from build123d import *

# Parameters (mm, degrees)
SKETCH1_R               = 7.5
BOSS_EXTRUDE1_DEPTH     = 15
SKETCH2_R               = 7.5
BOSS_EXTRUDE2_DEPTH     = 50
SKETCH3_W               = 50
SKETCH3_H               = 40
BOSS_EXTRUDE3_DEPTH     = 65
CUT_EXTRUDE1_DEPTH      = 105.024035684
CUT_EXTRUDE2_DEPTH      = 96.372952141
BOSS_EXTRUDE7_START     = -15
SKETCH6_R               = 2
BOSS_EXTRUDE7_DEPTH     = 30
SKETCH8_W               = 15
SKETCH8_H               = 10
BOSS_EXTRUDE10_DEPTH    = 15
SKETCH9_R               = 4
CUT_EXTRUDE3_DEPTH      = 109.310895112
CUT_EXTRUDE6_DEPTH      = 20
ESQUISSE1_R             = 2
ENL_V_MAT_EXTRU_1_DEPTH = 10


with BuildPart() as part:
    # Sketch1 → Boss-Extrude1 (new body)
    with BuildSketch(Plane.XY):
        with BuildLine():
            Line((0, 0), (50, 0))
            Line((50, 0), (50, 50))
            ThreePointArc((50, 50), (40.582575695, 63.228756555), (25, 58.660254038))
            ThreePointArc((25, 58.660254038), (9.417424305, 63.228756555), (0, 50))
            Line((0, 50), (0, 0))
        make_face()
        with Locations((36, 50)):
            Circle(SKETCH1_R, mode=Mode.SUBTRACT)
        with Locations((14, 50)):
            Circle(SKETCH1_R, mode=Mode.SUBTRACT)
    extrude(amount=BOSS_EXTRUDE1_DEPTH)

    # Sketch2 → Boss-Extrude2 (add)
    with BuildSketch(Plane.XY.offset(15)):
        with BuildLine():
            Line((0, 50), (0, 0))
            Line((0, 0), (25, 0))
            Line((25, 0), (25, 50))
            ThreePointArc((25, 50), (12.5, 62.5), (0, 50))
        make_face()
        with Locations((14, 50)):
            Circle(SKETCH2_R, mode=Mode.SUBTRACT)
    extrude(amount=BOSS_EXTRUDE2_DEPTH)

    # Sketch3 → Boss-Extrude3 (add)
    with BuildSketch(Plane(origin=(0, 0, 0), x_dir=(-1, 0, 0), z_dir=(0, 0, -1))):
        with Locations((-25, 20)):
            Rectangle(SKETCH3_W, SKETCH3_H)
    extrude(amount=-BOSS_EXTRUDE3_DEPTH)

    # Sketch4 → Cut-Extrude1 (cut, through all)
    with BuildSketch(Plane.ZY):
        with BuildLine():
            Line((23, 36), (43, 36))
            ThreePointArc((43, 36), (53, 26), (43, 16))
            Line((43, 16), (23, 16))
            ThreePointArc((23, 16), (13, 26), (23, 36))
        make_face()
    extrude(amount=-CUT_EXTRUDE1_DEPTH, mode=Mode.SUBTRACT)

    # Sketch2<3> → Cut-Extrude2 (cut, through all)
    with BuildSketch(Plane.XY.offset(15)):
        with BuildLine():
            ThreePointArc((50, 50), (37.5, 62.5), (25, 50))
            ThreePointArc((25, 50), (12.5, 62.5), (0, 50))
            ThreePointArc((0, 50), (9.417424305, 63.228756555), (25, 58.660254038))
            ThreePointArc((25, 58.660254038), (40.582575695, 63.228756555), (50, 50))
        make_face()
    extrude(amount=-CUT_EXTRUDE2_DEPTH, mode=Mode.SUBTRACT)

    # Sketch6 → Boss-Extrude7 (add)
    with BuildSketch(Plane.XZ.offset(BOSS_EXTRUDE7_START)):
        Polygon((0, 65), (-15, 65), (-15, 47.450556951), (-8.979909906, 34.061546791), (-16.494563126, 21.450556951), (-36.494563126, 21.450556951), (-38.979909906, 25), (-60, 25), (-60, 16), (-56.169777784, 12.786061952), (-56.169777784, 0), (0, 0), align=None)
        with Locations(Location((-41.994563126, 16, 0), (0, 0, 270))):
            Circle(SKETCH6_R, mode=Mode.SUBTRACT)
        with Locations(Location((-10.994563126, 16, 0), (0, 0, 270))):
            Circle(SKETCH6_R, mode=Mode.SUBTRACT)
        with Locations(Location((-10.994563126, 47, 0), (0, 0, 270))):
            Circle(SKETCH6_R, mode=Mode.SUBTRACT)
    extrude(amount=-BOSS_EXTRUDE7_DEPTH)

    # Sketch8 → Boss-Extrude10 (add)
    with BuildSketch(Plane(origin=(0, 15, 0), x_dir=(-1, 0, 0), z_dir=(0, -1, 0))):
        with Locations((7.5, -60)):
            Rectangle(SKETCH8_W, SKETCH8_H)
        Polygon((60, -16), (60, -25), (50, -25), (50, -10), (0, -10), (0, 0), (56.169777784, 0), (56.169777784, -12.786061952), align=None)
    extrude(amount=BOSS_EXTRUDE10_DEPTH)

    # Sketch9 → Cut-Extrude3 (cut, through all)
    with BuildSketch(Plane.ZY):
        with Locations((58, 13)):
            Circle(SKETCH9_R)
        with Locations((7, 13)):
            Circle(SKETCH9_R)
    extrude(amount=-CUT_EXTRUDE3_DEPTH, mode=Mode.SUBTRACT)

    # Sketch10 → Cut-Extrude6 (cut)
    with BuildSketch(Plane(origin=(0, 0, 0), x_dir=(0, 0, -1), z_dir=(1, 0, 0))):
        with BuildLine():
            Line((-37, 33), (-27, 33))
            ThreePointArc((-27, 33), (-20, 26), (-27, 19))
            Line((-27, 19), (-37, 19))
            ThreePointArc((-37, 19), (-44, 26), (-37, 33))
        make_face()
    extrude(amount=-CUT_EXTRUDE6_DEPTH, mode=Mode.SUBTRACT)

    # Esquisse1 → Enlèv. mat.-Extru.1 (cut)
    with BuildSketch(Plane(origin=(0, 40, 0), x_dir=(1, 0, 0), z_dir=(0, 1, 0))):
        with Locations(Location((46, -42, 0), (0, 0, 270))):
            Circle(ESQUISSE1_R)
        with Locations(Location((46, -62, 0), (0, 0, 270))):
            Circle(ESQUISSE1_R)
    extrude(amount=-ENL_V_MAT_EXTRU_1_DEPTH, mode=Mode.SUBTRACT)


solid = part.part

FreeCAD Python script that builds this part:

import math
import FreeCAD as App
import Part
import Sketcher

V = App.Vector
Q = App.Units.Quantity

doc = App.newDocument("Part")
params = doc.addObject("Spreadsheet::Sheet", "Params")
for row, (alias, value) in enumerate([
    ("sketch1_diameter", "15 mm"),
    ("sketch1_radius", "14 mm"),
    ("sketch1_width", "50 mm"),
    ("pad1_length", "15 mm"),
    ("sketch2_diameter", "15 mm"),
    ("sketch2_radius", "12.5 mm"),
    ("sketch2_height", "50 mm"),
    ("pad2_length", "50 mm"),
    ("sketch3_width", "50 mm"),
    ("sketch3_height", "40 mm"),
    ("pad3_length", "65 mm"),
    ("sketch4_radius", "10 mm"),
    ("sketch4_height", "20 mm"),
    ("sketch5_radius", "14 mm"),
    ("sketch5_radius2", "12.5 mm"),
    ("sketch6_diameter", "4 mm"),
    ("sketch6_width", "15 mm"),
    ("sketch6_width2", "20 mm"),
    ("sketch6_height", "9 mm"),
    ("sketch6_height2", "65 mm"),
    ("pad4_length", "30 mm"),
    ("sketch7_width", "15 mm"),
    ("sketch7_width2", "50 mm"),
    ("sketch7_width3", "10 mm"),
    ("sketch7_height", "9 mm"),
    ("sketch7_length", "5 mm"),
    ("pad5_length", "15 mm"),
    ("sketch8_diameter", "8 mm"),
    ("sketch9_radius", "7 mm"),
    ("sketch9_height", "10 mm"),
    ("pocket4_length", "20 mm"),
    ("sketch10_diameter", "4 mm"),
    ("pocket5_length", "10 mm"),
], start=1):
    params.set(f"A{row}", alias)
    params.set(f"B{row}", "=" + value)
    params.setAlias(f"B{row}", alias)

body = doc.addObject("PartDesign::Body", "Body")

# Sketch on XY plane
sketch1 = body.newObject("Sketcher::SketchObject", "Sketch")
sketch1.AttachmentSupport = (doc.getObject("XY_Plane"), [""])
sketch1.MapMode = "FlatFace"
sketch1.addGeometry(Part.LineSegment(V(0, 0, 0), V(50, 0, 0)), False)
sketch1.addGeometry(Part.LineSegment(V(50, 0, 0), V(50, 50, 0)), False)
sketch1.addGeometry(Part.ArcOfCircle(Part.Circle(V(36, 50, 0), V(0, 0, 1), 14), math.radians(0), math.radians(142)), False)
sketch1.addGeometry(Part.ArcOfCircle(Part.Circle(V(14, 50, 0), V(0, 0, 1), 14), math.radians(38), math.radians(180)), False)
sketch1.addGeometry(Part.LineSegment(V(0, 50, 0), V(0, 0, 0)), False)
sketch1.addGeometry(Part.Circle(V(14, 50, 0), V(0, 0, 1), 8), False)
sketch1.addGeometry(Part.Circle(V(36, 50, 0), V(0, 0, 1), 8), False)
sketch1.addConstraint(Sketcher.Constraint("Coincident", 0, 2, 1, 1))
sketch1.addConstraint(Sketcher.Constraint("Tangent", 1, 2, 2, 1))
sketch1.addConstraint(Sketcher.Constraint("Coincident", 2, 2, 3, 1))
sketch1.addConstraint(Sketcher.Constraint("Tangent", 3, 2, 4, 1))
sketch1.addConstraint(Sketcher.Constraint("Coincident", 4, 2, 0, 1))
sketch1.addConstraint(Sketcher.Constraint("Horizontal", 0))
sketch1.addConstraint(Sketcher.Constraint("Vertical", 1))
sketch1.addConstraint(Sketcher.Constraint("Vertical", 4))
sketch1.addConstraint(Sketcher.Constraint("Coincident", 4, 2, -1, 1))
sketch1.addConstraint(Sketcher.Constraint("Coincident", 5, 3, 3, 3))
sketch1.addConstraint(Sketcher.Constraint("Coincident", 6, 3, 2, 3))
sketch1.addConstraint(Sketcher.Constraint("Equal", 2, 3))
sketch1.addConstraint(Sketcher.Constraint("Equal", 5, 6))
sketch1.addConstraint(Sketcher.Constraint("Horizontal", 2, 3, 3, 3))
sketch1.addConstraint(Sketcher.Constraint("Equal", 0, 1))
sketch1.addConstraint(Sketcher.Constraint("Diameter", 5, Q("15 mm")))
sketch1.addConstraint(Sketcher.Constraint("Radius", 2, Q("14 mm")))
sketch1.addConstraint(Sketcher.Constraint("DistanceX", 0, 1, 0, 2, Q("50 mm")))
sketch1.setExpression("Constraints[15]", "Params.sketch1_diameter")
sketch1.setExpression("Constraints[16]", "Params.sketch1_radius")
sketch1.setExpression("Constraints[17]", "Params.sketch1_width")
pad1 = body.newObject("PartDesign::Pad", "Pad")
pad1.Profile = sketch1
pad1.setExpression("Length", "Params.pad1_length")

# Sketch on XY plane
sketch2 = body.newObject("Sketcher::SketchObject", "Sketch001")
sketch2.AttachmentSupport = (doc.getObject("XY_Plane"), [""])
sketch2.MapMode = "FlatFace"
sketch2.AttachmentOffset = App.Placement(V(0, 0, 15), App.Rotation())
sketch2.addGeometry(Part.LineSegment(V(0, 50, 0), V(0, 0, 0)), False)
sketch2.addGeometry(Part.LineSegment(V(0, 0, 0), V(25, 0, 0)), False)
sketch2.addGeometry(Part.LineSegment(V(25, 0, 0), V(25, 50, 0)), False)
sketch2.addGeometry(Part.ArcOfCircle(Part.Circle(V(12, 50, 0), V(0, 0, 1), 12), math.radians(0), math.radians(180)), False)
sketch2.addGeometry(Part.Circle(V(14, 50, 0), V(0, 0, 1), 8), False)
sketch2.addConstraint(Sketcher.Constraint("Coincident", 0, 2, 1, 1))
sketch2.addConstraint(Sketcher.Constraint("Coincident", 1, 2, 2, 1))
sketch2.addConstraint(Sketcher.Constraint("Tangent", 2, 2, 3, 1))
sketch2.addConstraint(Sketcher.Constraint("Tangent", 3, 2, 0, 1))
sketch2.addConstraint(Sketcher.Constraint("Vertical", 0))
sketch2.addConstraint(Sketcher.Constraint("Horizontal", 1))
sketch2.addConstraint(Sketcher.Constraint("Vertical", 2))
sketch2.addConstraint(Sketcher.Constraint("Coincident", 0, 2, -1, 1))
sketch2.addConstraint(Sketcher.Constraint("Horizontal", 3, 3, 4, 3))
sketch2.addConstraint(Sketcher.Constraint("Diameter", 4, Q("15 mm")))
sketch2.addConstraint(Sketcher.Constraint("Radius", 3, Q("12.5 mm")))
sketch2.addConstraint(Sketcher.Constraint("DistanceY", 0, 2, 0, 1, Q("50 mm")))
sketch2.addConstraint(Sketcher.Constraint("DistanceX", -1, 1, 4, 3, Q("14 mm")))
sketch2.setExpression("Constraints[9]", "Params.sketch2_diameter")
sketch2.setExpression("Constraints[10]", "Params.sketch2_radius")
sketch2.setExpression("Constraints[11]", "Params.sketch2_height")
pad2 = body.newObject("PartDesign::Pad", "Pad001")
pad2.Profile = sketch2
pad2.setExpression("Length", "Params.pad2_length")

# Sketch on XY plane
sketch3 = body.newObject("Sketcher::SketchObject", "Sketch002")
sketch3.AttachmentSupport = (doc.getObject("XY_Plane"), [""])
sketch3.MapMode = "FlatFace"
sketch3.addGeometry(Part.LineSegment(V(50, 40, 0), V(50, 0, 0)), False)
sketch3.addGeometry(Part.LineSegment(V(50, 0, 0), V(0, 0, 0)), False)
sketch3.addGeometry(Part.LineSegment(V(0, 0, 0), V(0, 40, 0)), False)
sketch3.addGeometry(Part.LineSegment(V(0, 40, 0), V(50, 40, 0)), False)
sketch3.addConstraint(Sketcher.Constraint("Coincident", 0, 2, 1, 1))
sketch3.addConstraint(Sketcher.Constraint("Coincident", 1, 2, 2, 1))
sketch3.addConstraint(Sketcher.Constraint("Coincident", 2, 2, 3, 1))
sketch3.addConstraint(Sketcher.Constraint("Coincident", 3, 2, 0, 1))
sketch3.addConstraint(Sketcher.Constraint("Vertical", 0))
sketch3.addConstraint(Sketcher.Constraint("Horizontal", 1))
sketch3.addConstraint(Sketcher.Constraint("Vertical", 2))
sketch3.addConstraint(Sketcher.Constraint("Horizontal", 3))
sketch3.addConstraint(Sketcher.Constraint("Coincident", 1, 2, -1, 1))
sketch3.addConstraint(Sketcher.Constraint("DistanceX", 1, 2, 1, 1, Q("50 mm")))
sketch3.addConstraint(Sketcher.Constraint("DistanceY", 0, 2, 0, 1, Q("40 mm")))
sketch3.setExpression("Constraints[9]", "Params.sketch3_width")
sketch3.setExpression("Constraints[10]", "Params.sketch3_height")
pad3 = body.newObject("PartDesign::Pad", "Pad002")
pad3.Profile = sketch3
pad3.setExpression("Length", "Params.pad3_length")

# Sketch on YZ plane
sketch4 = body.newObject("Sketcher::SketchObject", "Sketch003")
sketch4.AttachmentSupport = (doc.getObject("YZ_Plane"), [""])
sketch4.MapMode = "FlatFace"
sketch4.addGeometry(Part.LineSegment(V(36, 43, 0), V(36, 23, 0)), False)
sketch4.addGeometry(Part.ArcOfCircle(Part.Circle(V(26, 23, 0), V(0, 0, 1), 10), math.radians(180), math.radians(360)), False)
sketch4.addGeometry(Part.LineSegment(V(16, 23, 0), V(16, 43, 0)), False)
sketch4.addGeometry(Part.ArcOfCircle(Part.Circle(V(26, 43, 0), V(0, 0, 1), 10), math.radians(0), math.radians(180)), False)
sketch4.addConstraint(Sketcher.Constraint("Tangent", 0, 2, 1, 2))
sketch4.addConstraint(Sketcher.Constraint("Tangent", 1, 1, 2, 1))
sketch4.addConstraint(Sketcher.Constraint("Tangent", 2, 2, 3, 2))
sketch4.addConstraint(Sketcher.Constraint("Tangent", 3, 1, 0, 1))
sketch4.addConstraint(Sketcher.Constraint("Vertical", 0))
sketch4.addConstraint(Sketcher.Constraint("Vertical", 2))
sketch4.addConstraint(Sketcher.Constraint("Radius", 1, Q("10 mm")))
sketch4.addConstraint(Sketcher.Constraint("DistanceY", 0, 2, 0, 1, Q("20 mm")))
sketch4.addConstraint(Sketcher.Constraint("DistanceX", -1, 1, 1, 3, Q("26 mm")))
sketch4.addConstraint(Sketcher.Constraint("DistanceY", -1, 1, 1, 3, Q("23 mm")))
sketch4.setExpression("Constraints[6]", "Params.sketch4_radius")
sketch4.setExpression("Constraints[7]", "Params.sketch4_height")
pocket1 = body.newObject("PartDesign::Pocket", "Pocket")
pocket1.Profile = sketch4
pocket1.Type = "ThroughAll"
pocket1.Reversed = True

# Sketch on XY plane
sketch5 = body.newObject("Sketcher::SketchObject", "Sketch004")
sketch5.AttachmentSupport = (doc.getObject("XY_Plane"), [""])
sketch5.MapMode = "FlatFace"
sketch5.AttachmentOffset = App.Placement(V(0, 0, 15), App.Rotation())
sketch5.addGeometry(Part.ArcOfCircle(Part.Circle(V(38, 50, 0), V(0, 0, 1), 12), math.radians(0), math.radians(180)), False)
sketch5.addGeometry(Part.ArcOfCircle(Part.Circle(V(36, 50, 0), V(0, 0, 1), 14), math.radians(0), math.radians(142)), False)
sketch5.addGeometry(Part.ArcOfCircle(Part.Circle(V(14, 50, 0), V(0, 0, 1), 14), math.radians(38), math.radians(180)), False)
sketch5.addGeometry(Part.ArcOfCircle(Part.Circle(V(12, 50, 0), V(0, 0, 1), 12), math.radians(0), math.radians(180)), False)
sketch5.addConstraint(Sketcher.Constraint("Tangent", 0, 1, 1, 1))
sketch5.addConstraint(Sketcher.Constraint("Coincident", 1, 2, 2, 1))
sketch5.addConstraint(Sketcher.Constraint("Tangent", 2, 2, 3, 2))
sketch5.addConstraint(Sketcher.Constraint("Tangent", 3, 1, 0, 2))
sketch5.addConstraint(Sketcher.Constraint("Equal", 1, 2))
sketch5.addConstraint(Sketcher.Constraint("Equal", 0, 3))
sketch5.addConstraint(Sketcher.Constraint("PointOnObject", 2, 2, -2))
sketch5.addConstraint(Sketcher.Constraint("Horizontal", 0, 3, 1, 3))
sketch5.addConstraint(Sketcher.Constraint("Horizontal", 1, 3, 2, 3))
sketch5.addConstraint(Sketcher.Constraint("Horizontal", 2, 3, 3, 3))
sketch5.addConstraint(Sketcher.Constraint("Radius", 1, Q("14 mm")))
sketch5.addConstraint(Sketcher.Constraint("Radius", 0, Q("12.5 mm")))
sketch5.addConstraint(Sketcher.Constraint("DistanceY", -1, 1, 0, 3, Q("50 mm")))
sketch5.setExpression("Constraints[10]", "Params.sketch5_radius")
sketch5.setExpression("Constraints[11]", "Params.sketch5_radius2")
pocket2 = body.newObject("PartDesign::Pocket", "Pocket001")
pocket2.Profile = sketch5
pocket2.Type = "ThroughAll"

# Sketch on XZ plane
sketch6 = body.newObject("Sketcher::SketchObject", "Sketch005")
sketch6.AttachmentSupport = (doc.getObject("XZ_Plane"), [""])
sketch6.MapMode = "FlatFace"
sketch6.AttachmentOffset = App.Placement(V(0, 0, -15), App.Rotation())
sketch6.addGeometry(Part.LineSegment(V(0, 65, 0), V(-15, 65, 0)), False)
sketch6.addGeometry(Part.LineSegment(V(-15, 65, 0), V(-15, 47.5, 0)), False)
sketch6.addGeometry(Part.LineSegment(V(-15, 47.5, 0), V(-9, 34.1, 0)), False)
sketch6.addGeometry(Part.LineSegment(V(-9, 34.1, 0), V(-16.5, 21.5, 0)), False)
sketch6.addGeometry(Part.LineSegment(V(-16.5, 21.5, 0), V(-36.5, 21.5, 0)), False)
sketch6.addGeometry(Part.LineSegment(V(-36.5, 21.5, 0), V(-39, 25, 0)), False)
sketch6.addGeometry(Part.LineSegment(V(-39, 25, 0), V(-60, 25, 0)), False)
sketch6.addGeometry(Part.LineSegment(V(-60, 25, 0), V(-60, 16, 0)), False)
sketch6.addGeometry(Part.LineSegment(V(-60, 16, 0), V(-56.2, 12.8, 0)), False)
sketch6.addGeometry(Part.LineSegment(V(-56.2, 12.8, 0), V(-56.2, 0, 0)), False)
sketch6.addGeometry(Part.LineSegment(V(-56.2, 0, 0), V(0, 0, 0)), False)
sketch6.addGeometry(Part.LineSegment(V(0, 0, 0), V(0, 65, 0)), False)
sketch6.addGeometry(Part.Circle(V(-42, 16, 0), V(0, 0, 1), 2), False)
sketch6.addGeometry(Part.Circle(V(-11, 16, 0), V(0, 0, 1), 2), False)
sketch6.addGeometry(Part.Circle(V(-11, 47, 0), V(0, 0, 1), 2), False)
sketch6.addConstraint(Sketcher.Constraint("Coincident", 0, 2, 1, 1))
sketch6.addConstraint(Sketcher.Constraint("Coincident", 1, 2, 2, 1))
sketch6.addConstraint(Sketcher.Constraint("Coincident", 2, 2, 3, 1))
sketch6.addConstraint(Sketcher.Constraint("Coincident", 3, 2, 4, 1))
sketch6.addConstraint(Sketcher.Constraint("Coincident", 4, 2, 5, 1))
sketch6.addConstraint(Sketcher.Constraint("Coincident", 5, 2, 6, 1))
sketch6.addConstraint(Sketcher.Constraint("Coincident", 6, 2, 7, 1))
sketch6.addConstraint(Sketcher.Constraint("Coincident", 7, 2, 8, 1))
sketch6.addConstraint(Sketcher.Constraint("Coincident", 8, 2, 9, 1))
sketch6.addConstraint(Sketcher.Constraint("Coincident", 9, 2, 10, 1))
sketch6.addConstraint(Sketcher.Constraint("Coincident", 10, 2, 11, 1))
sketch6.addConstraint(Sketcher.Constraint("Coincident", 11, 2, 0, 1))
sketch6.addConstraint(Sketcher.Constraint("Horizontal", 0))
sketch6.addConstraint(Sketcher.Constraint("Vertical", 1))
sketch6.addConstraint(Sketcher.Constraint("Horizontal", 4))
sketch6.addConstraint(Sketcher.Constraint("Horizontal", 6))
sketch6.addConstraint(Sketcher.Constraint("Vertical", 7))
sketch6.addConstraint(Sketcher.Constraint("Vertical", 9))
sketch6.addConstraint(Sketcher.Constraint("Horizontal", 10))
sketch6.addConstraint(Sketcher.Constraint("Vertical", 11))
sketch6.addConstraint(Sketcher.Constraint("Coincident", 10, 2, -1, 1))
sketch6.addConstraint(Sketcher.Constraint("Equal", 12, 13))
sketch6.addConstraint(Sketcher.Constraint("Equal", 13, 14))
sketch6.addConstraint(Sketcher.Constraint("Horizontal", 12, 3, 13, 3))
sketch6.addConstraint(Sketcher.Constraint("Horizontal", 13, 3, 7, 2))
sketch6.addConstraint(Sketcher.Constraint("Vertical", 13, 3, 14, 3))
sketch6.addConstraint(Sketcher.Constraint("Equal", 2, 3))
sketch6.addConstraint(Sketcher.Constraint("Diameter", 12, Q("4 mm")))
sketch6.addConstraint(Sketcher.Constraint("DistanceX", 0, 2, 0, 1, Q("15 mm")))
sketch6.addConstraint(Sketcher.Constraint("DistanceX", 4, 2, 4, 1, Q("20 mm")))
sketch6.addConstraint(Sketcher.Constraint("DistanceY", 7, 2, 7, 1, Q("9 mm")))
sketch6.addConstraint(Sketcher.Constraint("DistanceY", 11, 1, 11, 2, Q("65 mm")))
sketch6.addConstraint(Sketcher.Constraint("Angle", 5, Q("125 deg")))
sketch6.addConstraint(Sketcher.Constraint("Angle", 8, Q("-40 deg")))
sketch6.addConstraint(Sketcher.Constraint("Distance", 8, Q("5 mm")))
sketch6.addConstraint(Sketcher.Constraint("DistanceY", -1, 1, 12, 3, Q("16 mm")))
sketch6.addConstraint(Sketcher.Constraint("DistanceY", -1, 1, 14, 3, Q("47 mm")))
sketch6.addConstraint(Sketcher.Constraint("DistanceX", 6, 2, -1, 1, Q("60 mm")))
sketch6.addConstraint(Sketcher.Constraint("DistanceX", 12, 3, 13, 3, Q("31 mm")))
sketch6.addConstraint(Sketcher.Constraint("DistanceY", 3, 2, 1, 2, Q("26 mm")))
sketch6.addConstraint(Sketcher.Constraint("DistanceX", 5, 2, 2, 2, Q("30 mm")))
sketch6.addConstraint(Sketcher.Constraint("DistanceX", 3, 2, 13, 3, Q("5.5 mm")))
sketch6.addConstraint(Sketcher.Constraint("DistanceX", 6, 2, 6, 1, Q("21.02009 mm")))
sketch6.addConstraint(Sketcher.Constraint("Distance", 2, Q("14.680159 mm")))
sketch6.setExpression("Constraints[27]", "Params.sketch6_diameter")
sketch6.setExpression("Constraints[28]", "Params.sketch6_width")
sketch6.setExpression("Constraints[29]", "Params.sketch6_width2")
sketch6.setExpression("Constraints[30]", "Params.sketch6_height")
sketch6.setExpression("Constraints[31]", "Params.sketch6_height2")
pad4 = body.newObject("PartDesign::Pad", "Pad003")
pad4.Profile = sketch6
pad4.setExpression("Length", "Params.pad4_length")
pad4.Reversed = True

# Sketch on XZ plane
sketch7 = body.newObject("Sketcher::SketchObject", "Sketch006")
sketch7.AttachmentSupport = (doc.getObject("XZ_Plane"), [""])
sketch7.MapMode = "FlatFace"
sketch7.AttachmentOffset = App.Placement(V(0, 0, -15), App.Rotation())
sketch7.addGeometry(Part.LineSegment(V(0, 55, 0), V(0, 65, 0)), False)
sketch7.addGeometry(Part.LineSegment(V(0, 65, 0), V(-15, 65, 0)), False)
sketch7.addGeometry(Part.LineSegment(V(-15, 65, 0), V(-15, 55, 0)), False)
sketch7.addGeometry(Part.LineSegment(V(-15, 55, 0), V(0, 55, 0)), False)
sketch7.addGeometry(Part.LineSegment(V(-60, 25, 0), V(-60, 16, 0)), False)
sketch7.addGeometry(Part.LineSegment(V(-60, 16, 0), V(-56, 13, 0)), False)
sketch7.addGeometry(Part.LineSegment(V(-56, 13, 0), V(-56, 0, 0)), False)
sketch7.addGeometry(Part.LineSegment(V(-56, 0, 0), V(0, 0, 0)), False)
sketch7.addGeometry(Part.LineSegment(V(0, 0, 0), V(0, 10, 0)), False)
sketch7.addGeometry(Part.LineSegment(V(0, 10, 0), V(-50, 10, 0)), False)
sketch7.addGeometry(Part.LineSegment(V(-50, 10, 0), V(-50, 25, 0)), False)
sketch7.addGeometry(Part.LineSegment(V(-50, 25, 0), V(-60, 25, 0)), False)
sketch7.addConstraint(Sketcher.Constraint("Coincident", 0, 2, 1, 1))
sketch7.addConstraint(Sketcher.Constraint("Coincident", 1, 2, 2, 1))
sketch7.addConstraint(Sketcher.Constraint("Coincident", 2, 2, 3, 1))
sketch7.addConstraint(Sketcher.Constraint("Coincident", 3, 2, 0, 1))
sketch7.addConstraint(Sketcher.Constraint("Coincident", 4, 2, 5, 1))
sketch7.addConstraint(Sketcher.Constraint("Coincident", 5, 2, 6, 1))
sketch7.addConstraint(Sketcher.Constraint("Coincident", 6, 2, 7, 1))
sketch7.addConstraint(Sketcher.Constraint("Coincident", 7, 2, 8, 1))
sketch7.addConstraint(Sketcher.Constraint("Coincident", 8, 2, 9, 1))
sketch7.addConstraint(Sketcher.Constraint("Coincident", 9, 2, 10, 1))
sketch7.addConstraint(Sketcher.Constraint("Coincident", 10, 2, 11, 1))
sketch7.addConstraint(Sketcher.Constraint("Coincident", 11, 2, 4, 1))
sketch7.addConstraint(Sketcher.Constraint("Vertical", 0))
sketch7.addConstraint(Sketcher.Constraint("Horizontal", 1))
sketch7.addConstraint(Sketcher.Constraint("Vertical", 2))
sketch7.addConstraint(Sketcher.Constraint("Horizontal", 3))
sketch7.addConstraint(Sketcher.Constraint("Vertical", 4))
sketch7.addConstraint(Sketcher.Constraint("Vertical", 6))
sketch7.addConstraint(Sketcher.Constraint("Horizontal", 7))
sketch7.addConstraint(Sketcher.Constraint("Vertical", 8))
sketch7.addConstraint(Sketcher.Constraint("Horizontal", 9))
sketch7.addConstraint(Sketcher.Constraint("Vertical", 10))
sketch7.addConstraint(Sketcher.Constraint("Horizontal", 11))
sketch7.addConstraint(Sketcher.Constraint("Coincident", 7, 2, -1, 1))
sketch7.addConstraint(Sketcher.Constraint("PointOnObject", 0, 2, -2))
sketch7.addConstraint(Sketcher.Constraint("Equal", 11, 0))
sketch7.addConstraint(Sketcher.Constraint("Equal", 2, 8))
sketch7.addConstraint(Sketcher.Constraint("Equal", 3, 10))
sketch7.addConstraint(Sketcher.Constraint("DistanceX", 1, 2, 1, 1, Q("15 mm")))
sketch7.addConstraint(Sketcher.Constraint("DistanceX", 9, 2, 9, 1, Q("50 mm")))
sketch7.addConstraint(Sketcher.Constraint("DistanceX", 11, 2, 11, 1, Q("10 mm")))
sketch7.addConstraint(Sketcher.Constraint("DistanceY", 4, 2, 4, 1, Q("9 mm")))
sketch7.addConstraint(Sketcher.Constraint("Angle", 5, Q("-40 deg")))
sketch7.addConstraint(Sketcher.Constraint("Distance", 5, Q("5 mm")))
sketch7.addConstraint(Sketcher.Constraint("DistanceY", -1, 1, 0, 2, Q("65 mm")))
sketch7.setExpression("Constraints[28]", "Params.sketch7_width")
sketch7.setExpression("Constraints[29]", "Params.sketch7_width2")
sketch7.setExpression("Constraints[30]", "Params.sketch7_width3")
sketch7.setExpression("Constraints[31]", "Params.sketch7_height")
sketch7.setExpression("Constraints[33]", "Params.sketch7_length")
pad5 = body.newObject("PartDesign::Pad", "Pad004")
pad5.Profile = sketch7
pad5.setExpression("Length", "Params.pad5_length")

# Sketch on YZ plane
sketch8 = body.newObject("Sketcher::SketchObject", "Sketch007")
sketch8.AttachmentSupport = (doc.getObject("YZ_Plane"), [""])
sketch8.MapMode = "FlatFace"
sketch8.addGeometry(Part.Circle(V(13, 58, 0), V(0, 0, 1), 4), False)
sketch8.addGeometry(Part.Circle(V(13, 7, 0), V(0, 0, 1), 4), False)
sketch8.addConstraint(Sketcher.Constraint("Equal", 0, 1))
sketch8.addConstraint(Sketcher.Constraint("Vertical", 0, 3, 1, 3))
sketch8.addConstraint(Sketcher.Constraint("Diameter", 0, Q("8 mm")))
sketch8.addConstraint(Sketcher.Constraint("DistanceX", -1, 1, 0, 3, Q("13 mm")))
sketch8.addConstraint(Sketcher.Constraint("DistanceY", -1, 1, 0, 3, Q("58 mm")))
sketch8.addConstraint(Sketcher.Constraint("DistanceY", -1, 1, 1, 3, Q("7 mm")))
sketch8.setExpression("Constraints[2]", "Params.sketch8_diameter")
pocket3 = body.newObject("PartDesign::Pocket", "Pocket002")
pocket3.Profile = sketch8
pocket3.Type = "ThroughAll"
pocket3.Reversed = True

# Sketch on YZ plane
sketch9 = body.newObject("Sketcher::SketchObject", "Sketch008")
sketch9.AttachmentSupport = (doc.getObject("YZ_Plane"), [""])
sketch9.MapMode = "FlatFace"
sketch9.addGeometry(Part.LineSegment(V(33, 27, 0), V(33, 37, 0)), False)
sketch9.addGeometry(Part.ArcOfCircle(Part.Circle(V(26, 37, 0), V(0, 0, 1), 7), math.radians(0), math.radians(180)), False)
sketch9.addGeometry(Part.LineSegment(V(19, 37, 0), V(19, 27, 0)), False)
sketch9.addGeometry(Part.ArcOfCircle(Part.Circle(V(26, 27, 0), V(0, 0, 1), 7), math.radians(180), math.radians(360)), False)
sketch9.addConstraint(Sketcher.Constraint("Tangent", 0, 2, 1, 1))
sketch9.addConstraint(Sketcher.Constraint("Tangent", 1, 2, 2, 1))
sketch9.addConstraint(Sketcher.Constraint("Tangent", 2, 2, 3, 1))
sketch9.addConstraint(Sketcher.Constraint("Tangent", 3, 2, 0, 1))
sketch9.addConstraint(Sketcher.Constraint("Vertical", 0))
sketch9.addConstraint(Sketcher.Constraint("Vertical", 2))
sketch9.addConstraint(Sketcher.Constraint("Radius", 1, Q("7 mm")))
sketch9.addConstraint(Sketcher.Constraint("DistanceY", 0, 1, 0, 2, Q("10 mm")))
sketch9.addConstraint(Sketcher.Constraint("DistanceX", -1, 1, 1, 3, Q("26 mm")))
sketch9.addConstraint(Sketcher.Constraint("DistanceY", -1, 1, 1, 3, Q("37 mm")))
sketch9.setExpression("Constraints[6]", "Params.sketch9_radius")
sketch9.setExpression("Constraints[7]", "Params.sketch9_height")
pocket4 = body.newObject("PartDesign::Pocket", "Pocket003")
pocket4.Profile = sketch9
pocket4.setExpression("Length", "Params.pocket4_length")

# Sketch on XZ plane
sketch10 = body.newObject("Sketcher::SketchObject", "Sketch009")
sketch10.AttachmentSupport = (doc.getObject("XZ_Plane"), [""])
sketch10.MapMode = "FlatFace"
sketch10.AttachmentOffset = App.Placement(V(0, 0, -40), App.Rotation())
sketch10.addGeometry(Part.Circle(V(46, 42, 0), V(0, 0, 1), 2), False)
sketch10.addGeometry(Part.Circle(V(46, 62, 0), V(0, 0, 1), 2), False)
sketch10.addConstraint(Sketcher.Constraint("Equal", 0, 1))
sketch10.addConstraint(Sketcher.Constraint("Vertical", 0, 3, 1, 3))
sketch10.addConstraint(Sketcher.Constraint("Diameter", 0, Q("4 mm")))
sketch10.addConstraint(Sketcher.Constraint("DistanceX", -1, 1, 0, 3, Q("46 mm")))
sketch10.addConstraint(Sketcher.Constraint("DistanceY", -1, 1, 0, 3, Q("42 mm")))
sketch10.addConstraint(Sketcher.Constraint("DistanceY", -1, 1, 1, 3, Q("62 mm")))
sketch10.setExpression("Constraints[2]", "Params.sketch10_diameter")
pocket5 = body.newObject("PartDesign::Pocket", "Pocket004")
pocket5.Profile = sketch10
pocket5.setExpression("Length", "Params.pocket5_length")
pocket5.Reversed = True

doc.recompute()
